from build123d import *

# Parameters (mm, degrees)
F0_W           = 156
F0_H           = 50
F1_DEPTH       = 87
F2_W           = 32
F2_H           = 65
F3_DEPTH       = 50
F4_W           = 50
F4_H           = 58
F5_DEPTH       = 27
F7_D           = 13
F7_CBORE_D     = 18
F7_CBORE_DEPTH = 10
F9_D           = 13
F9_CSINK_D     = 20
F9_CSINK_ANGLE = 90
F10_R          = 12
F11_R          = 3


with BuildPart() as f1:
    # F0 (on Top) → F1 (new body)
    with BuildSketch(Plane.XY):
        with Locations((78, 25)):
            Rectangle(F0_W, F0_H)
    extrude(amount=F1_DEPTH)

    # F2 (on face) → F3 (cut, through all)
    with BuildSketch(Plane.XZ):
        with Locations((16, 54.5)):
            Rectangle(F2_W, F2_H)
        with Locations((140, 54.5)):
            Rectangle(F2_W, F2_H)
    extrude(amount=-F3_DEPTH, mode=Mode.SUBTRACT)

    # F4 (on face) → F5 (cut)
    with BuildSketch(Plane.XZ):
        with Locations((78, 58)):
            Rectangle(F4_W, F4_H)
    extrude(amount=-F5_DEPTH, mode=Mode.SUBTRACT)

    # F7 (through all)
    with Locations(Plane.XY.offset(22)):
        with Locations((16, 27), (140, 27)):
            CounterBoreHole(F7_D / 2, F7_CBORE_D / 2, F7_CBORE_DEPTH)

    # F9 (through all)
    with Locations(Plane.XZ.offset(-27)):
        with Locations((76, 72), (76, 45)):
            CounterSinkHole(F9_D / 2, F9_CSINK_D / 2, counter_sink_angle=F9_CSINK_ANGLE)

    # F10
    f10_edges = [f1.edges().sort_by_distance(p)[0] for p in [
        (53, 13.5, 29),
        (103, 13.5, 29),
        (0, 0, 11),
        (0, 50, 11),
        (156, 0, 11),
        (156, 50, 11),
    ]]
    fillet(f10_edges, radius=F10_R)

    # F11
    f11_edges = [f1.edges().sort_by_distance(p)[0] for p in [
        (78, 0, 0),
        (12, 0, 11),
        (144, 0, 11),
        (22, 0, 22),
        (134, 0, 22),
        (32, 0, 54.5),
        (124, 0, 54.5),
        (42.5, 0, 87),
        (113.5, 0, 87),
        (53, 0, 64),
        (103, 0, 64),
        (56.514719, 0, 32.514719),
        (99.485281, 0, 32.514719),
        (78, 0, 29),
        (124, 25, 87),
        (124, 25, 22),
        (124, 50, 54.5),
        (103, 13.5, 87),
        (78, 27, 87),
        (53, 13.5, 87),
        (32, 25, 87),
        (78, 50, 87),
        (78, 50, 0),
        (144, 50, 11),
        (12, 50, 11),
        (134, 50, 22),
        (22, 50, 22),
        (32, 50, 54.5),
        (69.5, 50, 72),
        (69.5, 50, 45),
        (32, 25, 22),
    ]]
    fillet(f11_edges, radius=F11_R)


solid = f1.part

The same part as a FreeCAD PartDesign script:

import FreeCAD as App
import Part
import Sketcher
Q = App.Units.Quantity


def edges_at(feature, points):
    """Names of the edges that pass closest to the given points."""
    edges = feature.Shape.Edges
    near = lambda p: min(range(len(edges)), key=lambda i: edges[i].distToShape(Part.Vertex(*p))[0])
    return sorted({f"Edge{near(p) + 1}" for p in points})

doc = App.newDocument("Part")
params = doc.addObject("Spreadsheet::Sheet", "Params")
for row, (alias, value) in enumerate([
    ("sketch1_width", "156 mm"),
    ("sketch1_height", "50 mm"),
    ("pad1_length", "87 mm"),
    ("sketch2_width", "32 mm"),
    ("sketch2_height", "65 mm"),
    ("sketch3_width", "50 mm"),
    ("sketch3_height", "58 mm"),
    ("pocket2_length", "27 mm"),
    ("sketch4_diameter", "13 mm"),
    ("hole_diameter", "13 mm"),
    ("hole_cbore_diameter", "18 mm"),
    ("hole_cbore_depth", "10 mm"),
    ("sketch5_diameter", "13 mm"),
    ("hole2_diameter", "13 mm"),
    ("hole2_csink_diameter", "20 mm"),
    ("fillet_radius", "12 mm"),
    ("fillet2_radius", "3 mm"),
], start=1):
    params.set(f"A{row}", alias)
    params.set(f"B{row}", "=" + value)
    params.setAlias(f"B{row}", alias)

body = doc.addObject("PartDesign::Body", "Body")

# Sketch on XY plane
sketch1 = body.newObject("Sketcher::SketchObject", "Sketch")
sketch1.AttachmentSupport = (doc.getObject("XY_Plane"), [""])
sketch1.MapMode = "FlatFace"
sketch1.addGeometry(Part.LineSegment(App.Vector(0, 50, 0), App.Vector(0, 0, 0)), False)
sketch1.addGeometry(Part.LineSegment(App.Vector(0, 0, 0), App.Vector(156, 0, 0)), False)
sketch1.addGeometry(Part.LineSegment(App.Vector(156, 0, 0), App.Vector(156, 50, 0)), False)
sketch1.addGeometry(Part.LineSegment(App.Vector(156, 50, 0), App.Vector(0, 50, 0)), False)
sketch1.addConstraint(Sketcher.Constraint("Coincident", 0, 2, 1, 1))
sketch1.addConstraint(Sketcher.Constraint("Coincident", 1, 2, 2, 1))
sketch1.addConstraint(Sketcher.Constraint("Coincident", 2, 2, 3, 1))
sketch1.addConstraint(Sketcher.Constraint("Coincident", 3, 2, 0, 1))
sketch1.addConstraint(Sketcher.Constraint("Vertical", 0))
sketch1.addConstraint(Sketcher.Constraint("Horizontal", 1))
sketch1.addConstraint(Sketcher.Constraint("Vertical", 2))
sketch1.addConstraint(Sketcher.Constraint("Horizontal", 3))
sketch1.addConstraint(Sketcher.Constraint("Coincident", 0, 2, -1, 1))
sketch1.addConstraint(Sketcher.Constraint("DistanceX", 1, 1, 1, 2, Q("156 mm")))
sketch1.addConstraint(Sketcher.Constraint("DistanceY", 0, 2, 0, 1, Q("50 mm")))
sketch1.setExpression("Constraints[9]", "Params.sketch1_width")
sketch1.setExpression("Constraints[10]", "Params.sketch1_height")
pad1 = body.newObject("PartDesign::Pad", "Pad")
pad1.Profile = sketch1
pad1.setExpression("Length", "Params.pad1_length")

# Sketch on XZ plane
sketch2 = body.newObject("Sketcher::SketchObject", "Sketch001")
sketch2.AttachmentSupport = (doc.getObject("XZ_Plane"), [""])
sketch2.MapMode = "FlatFace"
sketch2.addGeometry(Part.LineSegment(App.Vector(0, 87, 0), App.Vector(0, 22, 0)), False)
sketch2.addGeometry(Part.LineSegment(App.Vector(0, 22, 0), App.Vector(32, 22, 0)), False)
sketch2.addGeometry(Part.LineSegment(App.Vector(32, 22, 0), App.Vector(32, 87, 0)), False)
sketch2.addGeometry(Part.LineSegment(App.Vector(32, 87, 0), App.Vector(0, 87, 0)), False)
sketch2.addGeometry(Part.LineSegment(App.Vector(124, 87, 0), App.Vector(124, 22, 0)), False)
sketch2.addGeometry(Part.LineSegment(App.Vector(124, 22, 0), App.Vector(156, 22, 0)), False)
sketch2.addGeometry(Part.LineSegment(App.Vector(156, 22, 0), App.Vector(156, 87, 0)), False)
sketch2.addGeometry(Part.LineSegment(App.Vector(156, 87, 0), App.Vector(124, 87, 0)), False)
sketch2.addConstraint(Sketcher.Constraint("Coincident", 0, 2, 1, 1))
sketch2.addConstraint(Sketcher.Constraint("Coincident", 1, 2, 2, 1))
sketch2.addConstraint(Sketcher.Constraint("Coincident", 2, 2, 3, 1))
sketch2.addConstraint(Sketcher.Constraint("Coincident", 3, 2, 0, 1))
sketch2.addConstraint(Sketcher.Constraint("Coincident", 4, 2, 5, 1))
sketch2.addConstraint(Sketcher.Constraint("Coincident", 5, 2, 6, 1))
sketch2.addConstraint(Sketcher.Constraint("Coincident", 6, 2, 7, 1))
sketch2.addConstraint(Sketcher.Constraint("Coincident", 7, 2, 4, 1))
sketch2.addConstraint(Sketcher.Constraint("Vertical", 0))
sketch2.addConstraint(Sketcher.Constraint("Horizontal", 1))
sketch2.addConstraint(Sketcher.Constraint("Vertical", 2))
sketch2.addConstraint(Sketcher.Constraint("Horizontal", 3))
sketch2.addConstraint(Sketcher.Constraint("Vertical", 4))
sketch2.addConstraint(Sketcher.Constraint("Horizontal", 5))
sketch2.addConstraint(Sketcher.Constraint("Vertical", 6))
sketch2.addConstraint(Sketcher.Constraint("Horizontal", 7))
sketch2.addConstraint(Sketcher.Constraint("PointOnObject", 0, 2, -2))
sketch2.addConstraint(Sketcher.Constraint("Horizontal", 1, 2, 4, 2))
sketch2.addConstraint(Sketcher.Constraint("Horizontal", 3, 2, 6, 2))
sketch2.addConstraint(Sketcher.Constraint("Equal", 3, 5))
sketch2.addConstraint(Sketcher.Constraint("DistanceX", 1, 1, 1, 2, Q("32 mm")))
sketch2.addConstraint(Sketcher.Constraint("DistanceY", 0, 2, 0, 1, Q("65 mm")))
sketch2.addConstraint(Sketcher.Constraint("DistanceY", -1, 1, 0, 2, Q("22 mm")))
sketch2.addConstraint(Sketcher.Constraint("DistanceX", -1, 1, 4, 2, Q("124 mm")))
sketch2.setExpression("Constraints[20]", "Params.sketch2_width")
sketch2.setExpression("Constraints[21]", "Params.sketch2_height")
pocket1 = body.newObject("PartDesign::Pocket", "Pocket")
pocket1.Profile = sketch2
pocket1.Type = "ThroughAll"

# Sketch on XZ plane
sketch3 = body.newObject("Sketcher::SketchObject", "Sketch002")
sketch3.AttachmentSupport = (doc.getObject("XZ_Plane"), [""])
sketch3.MapMode = "FlatFace"
sketch3.addGeometry(Part.LineSegment(App.Vector(53, 87, 0), App.Vector(53, 29, 0)), False)
sketch3.addGeometry(Part.LineSegment(App.Vector(53, 29, 0), App.Vector(103, 29, 0)), False)
sketch3.addGeometry(Part.LineSegment(App.Vector(103, 29, 0), App.Vector(103, 87, 0)), False)
sketch3.addGeometry(Part.LineSegment(App.Vector(103, 87, 0), App.Vector(53, 87, 0)), False)
sketch3.addConstraint(Sketcher.Constraint("Coincident", 0, 2, 1, 1))
sketch3.addConstraint(Sketcher.Constraint("Coincident", 1, 2, 2, 1))
sketch3.addConstraint(Sketcher.Constraint("Coincident", 2, 2, 3, 1))
sketch3.addConstraint(Sketcher.Constraint("Coincident", 3, 2, 0, 1))
sketch3.addConstraint(Sketcher.Constraint("Vertical", 0))
sketch3.addConstraint(Sketcher.Constraint("Horizontal", 1))
sketch3.addConstraint(Sketcher.Constraint("Vertical", 2))
sketch3.addConstraint(Sketcher.Constraint("Horizontal", 3))
sketch3.addConstraint(Sketcher.Constraint("DistanceX", 1, 1, 1, 2, Q("50 mm")))
sketch3.addConstraint(Sketcher.Constraint("DistanceY", 0, 2, 0, 1, Q("58 mm")))
sketch3.addConstraint(Sketcher.Constraint("DistanceX", -1, 1, 0, 2, Q("53 mm")))
sketch3.addConstraint(Sketcher.Constraint("DistanceY", -1, 1, 0, 2, Q("29 mm")))
sketch3.setExpression("Constraints[8]", "Params.sketch3_width")
sketch3.setExpression("Constraints[9]", "Params.sketch3_height")
pocket2 = body.newObject("PartDesign::Pocket", "Pocket001")
pocket2.Profile = sketch3
pocket2.setExpression("Length", "Params.pocket2_length")

# Sketch on XY plane
sketch4 = body.newObject("Sketcher::SketchObject", "Sketch003")
sketch4.AttachmentSupport = (doc.getObject("XY_Plane"), [""])
sketch4.MapMode = "FlatFace"
sketch4.AttachmentOffset = App.Placement(App.Vector(0, 0, 22), App.Rotation())
sketch4.addGeometry(Part.Circle(App.Vector(16, 27, 0), App.Vector(0, 0, 1), 6.5), False)
sketch4.addGeometry(Part.Circle(App.Vector(140, 27, 0), App.Vector(0, 0, 1), 6.5), False)
sketch4.addConstraint(Sketcher.Constraint("Equal", 0, 1))
sketch4.addConstraint(Sketcher.Constraint("Horizontal", 0, 3, 1, 3))
sketch4.addConstraint(Sketcher.Constraint("Diameter", 0, Q("13 mm")))
sketch4.addConstraint(Sketcher.Constraint("DistanceX", -1, 1, 0, 3, Q("16 mm")))
sketch4.addConstraint(Sketcher.Constraint("DistanceY", -1, 1, 0, 3, Q("27 mm")))
sketch4.addConstraint(Sketcher.Constraint("DistanceX", -1, 1, 1, 3, Q("140 mm")))
sketch4.setExpression("Constraints[2]", "Params.sketch4_diameter")
doc.recompute()
hole = body.newObject("PartDesign::Hole", "Hole")
hole.Profile = sketch4
hole.ThreadType = "None"
hole.setExpression("Diameter", "Params.hole_diameter")
hole.DepthType = "ThroughAll"
hole.HoleCutType = "Counterbore"
hole.setExpression("HoleCutDiameter", "Params.hole_cbore_diameter")
hole.setExpression("HoleCutDepth", "Params.hole_cbore_depth")

# Sketch on XZ plane
sketch5 = body.newObject("Sketcher::SketchObject", "Sketch004")
sketch5.AttachmentSupport = (doc.getObject("XZ_Plane"), [""])
sketch5.MapMode = "FlatFace"
sketch5.AttachmentOffset = App.Placement(App.Vector(0, 0, -27), App.Rotation())
sketch5.addGeometry(Part.Circle(App.Vector(76, 72, 0), App.Vector(0, 0, 1), 6.5), False)
sketch5.addGeometry(Part.Circle(App.Vector(76, 45, 0), App.Vector(0, 0, 1), 6.5), False)
sketch5.addConstraint(Sketcher.Constraint("Equal", 0, 1))
sketch5.addConstraint(Sketcher.Constraint("Vertical", 0, 3, 1, 3))
sketch5.addConstraint(Sketcher.Constraint("Diameter", 0, Q("13 mm")))
sketch5.addConstraint(Sketcher.Constraint("DistanceX", -1, 1, 0, 3, Q("76 mm")))
sketch5.addConstraint(Sketcher.Constraint("DistanceY", -1, 1, 0, 3, Q("72 mm")))
sketch5.addConstraint(Sketcher.Constraint("DistanceY", -1, 1, 1, 3, Q("45 mm")))
sketch5.setExpression("Constraints[2]", "Params.sketch5_diameter")
doc.recompute()
hole2 = body.newObject("PartDesign::Hole", "Hole001")
hole2.Profile = sketch5
hole2.ThreadType = "None"
hole2.setExpression("Diameter", "Params.hole2_diameter")
hole2.DepthType = "ThroughAll"
hole2.HoleCutType = "Countersink"
hole2.setExpression("HoleCutDiameter", "Params.hole2_csink_diameter")
hole2.HoleCutCountersinkAngle = 90
doc.recompute()

fillet = body.newObject("PartDesign::Fillet", "Fillet")
fillet.Base = (hole2, edges_at(hole2, [
    (53, 13.5, 29),
    (103, 13.5, 29),
    (0, 0, 11),
    (0, 50, 11),
    (156, 0, 11),
    (156, 50, 11),
]))
fillet.setExpression("Radius", "Params.fillet_radius")
doc.recompute()

fillet2 = body.newObject("PartDesign::Fillet", "Fillet001")
fillet2.Base = (fillet, edges_at(fillet, [
    (78, 0, 0),
    (12, 0, 11),
    (144, 0, 11),
    (22, 0, 22),
    (134, 0, 22),
    (32, 0, 54.5),
    (124, 0, 54.5),
    (42.5, 0, 87),
    (113.5, 0, 87),
    (53, 0, 64),
    (103, 0, 64),
    (56.515, 0, 32.515),
    (99.485, 0, 32.515),
    (78, 0, 29),
    (124, 25, 87),
    (124, 25, 22),
    (124, 50, 54.5),
    (103, 13.5, 87),
    (78, 27, 87),
    (53, 13.5, 87),
    (32, 25, 87),
    (78, 50, 87),
    (78, 50, 0),
    (144, 50, 11),
    (12, 50, 11),
    (134, 50, 22),
    (22, 50, 22),
    (32, 50, 54.5),
    (82.5, 50, 72),
    (82.5, 50, 45),
    (32, 25, 22),
]))
fillet2.setExpression("Radius", "Params.fillet2_radius")

doc.recompute()
